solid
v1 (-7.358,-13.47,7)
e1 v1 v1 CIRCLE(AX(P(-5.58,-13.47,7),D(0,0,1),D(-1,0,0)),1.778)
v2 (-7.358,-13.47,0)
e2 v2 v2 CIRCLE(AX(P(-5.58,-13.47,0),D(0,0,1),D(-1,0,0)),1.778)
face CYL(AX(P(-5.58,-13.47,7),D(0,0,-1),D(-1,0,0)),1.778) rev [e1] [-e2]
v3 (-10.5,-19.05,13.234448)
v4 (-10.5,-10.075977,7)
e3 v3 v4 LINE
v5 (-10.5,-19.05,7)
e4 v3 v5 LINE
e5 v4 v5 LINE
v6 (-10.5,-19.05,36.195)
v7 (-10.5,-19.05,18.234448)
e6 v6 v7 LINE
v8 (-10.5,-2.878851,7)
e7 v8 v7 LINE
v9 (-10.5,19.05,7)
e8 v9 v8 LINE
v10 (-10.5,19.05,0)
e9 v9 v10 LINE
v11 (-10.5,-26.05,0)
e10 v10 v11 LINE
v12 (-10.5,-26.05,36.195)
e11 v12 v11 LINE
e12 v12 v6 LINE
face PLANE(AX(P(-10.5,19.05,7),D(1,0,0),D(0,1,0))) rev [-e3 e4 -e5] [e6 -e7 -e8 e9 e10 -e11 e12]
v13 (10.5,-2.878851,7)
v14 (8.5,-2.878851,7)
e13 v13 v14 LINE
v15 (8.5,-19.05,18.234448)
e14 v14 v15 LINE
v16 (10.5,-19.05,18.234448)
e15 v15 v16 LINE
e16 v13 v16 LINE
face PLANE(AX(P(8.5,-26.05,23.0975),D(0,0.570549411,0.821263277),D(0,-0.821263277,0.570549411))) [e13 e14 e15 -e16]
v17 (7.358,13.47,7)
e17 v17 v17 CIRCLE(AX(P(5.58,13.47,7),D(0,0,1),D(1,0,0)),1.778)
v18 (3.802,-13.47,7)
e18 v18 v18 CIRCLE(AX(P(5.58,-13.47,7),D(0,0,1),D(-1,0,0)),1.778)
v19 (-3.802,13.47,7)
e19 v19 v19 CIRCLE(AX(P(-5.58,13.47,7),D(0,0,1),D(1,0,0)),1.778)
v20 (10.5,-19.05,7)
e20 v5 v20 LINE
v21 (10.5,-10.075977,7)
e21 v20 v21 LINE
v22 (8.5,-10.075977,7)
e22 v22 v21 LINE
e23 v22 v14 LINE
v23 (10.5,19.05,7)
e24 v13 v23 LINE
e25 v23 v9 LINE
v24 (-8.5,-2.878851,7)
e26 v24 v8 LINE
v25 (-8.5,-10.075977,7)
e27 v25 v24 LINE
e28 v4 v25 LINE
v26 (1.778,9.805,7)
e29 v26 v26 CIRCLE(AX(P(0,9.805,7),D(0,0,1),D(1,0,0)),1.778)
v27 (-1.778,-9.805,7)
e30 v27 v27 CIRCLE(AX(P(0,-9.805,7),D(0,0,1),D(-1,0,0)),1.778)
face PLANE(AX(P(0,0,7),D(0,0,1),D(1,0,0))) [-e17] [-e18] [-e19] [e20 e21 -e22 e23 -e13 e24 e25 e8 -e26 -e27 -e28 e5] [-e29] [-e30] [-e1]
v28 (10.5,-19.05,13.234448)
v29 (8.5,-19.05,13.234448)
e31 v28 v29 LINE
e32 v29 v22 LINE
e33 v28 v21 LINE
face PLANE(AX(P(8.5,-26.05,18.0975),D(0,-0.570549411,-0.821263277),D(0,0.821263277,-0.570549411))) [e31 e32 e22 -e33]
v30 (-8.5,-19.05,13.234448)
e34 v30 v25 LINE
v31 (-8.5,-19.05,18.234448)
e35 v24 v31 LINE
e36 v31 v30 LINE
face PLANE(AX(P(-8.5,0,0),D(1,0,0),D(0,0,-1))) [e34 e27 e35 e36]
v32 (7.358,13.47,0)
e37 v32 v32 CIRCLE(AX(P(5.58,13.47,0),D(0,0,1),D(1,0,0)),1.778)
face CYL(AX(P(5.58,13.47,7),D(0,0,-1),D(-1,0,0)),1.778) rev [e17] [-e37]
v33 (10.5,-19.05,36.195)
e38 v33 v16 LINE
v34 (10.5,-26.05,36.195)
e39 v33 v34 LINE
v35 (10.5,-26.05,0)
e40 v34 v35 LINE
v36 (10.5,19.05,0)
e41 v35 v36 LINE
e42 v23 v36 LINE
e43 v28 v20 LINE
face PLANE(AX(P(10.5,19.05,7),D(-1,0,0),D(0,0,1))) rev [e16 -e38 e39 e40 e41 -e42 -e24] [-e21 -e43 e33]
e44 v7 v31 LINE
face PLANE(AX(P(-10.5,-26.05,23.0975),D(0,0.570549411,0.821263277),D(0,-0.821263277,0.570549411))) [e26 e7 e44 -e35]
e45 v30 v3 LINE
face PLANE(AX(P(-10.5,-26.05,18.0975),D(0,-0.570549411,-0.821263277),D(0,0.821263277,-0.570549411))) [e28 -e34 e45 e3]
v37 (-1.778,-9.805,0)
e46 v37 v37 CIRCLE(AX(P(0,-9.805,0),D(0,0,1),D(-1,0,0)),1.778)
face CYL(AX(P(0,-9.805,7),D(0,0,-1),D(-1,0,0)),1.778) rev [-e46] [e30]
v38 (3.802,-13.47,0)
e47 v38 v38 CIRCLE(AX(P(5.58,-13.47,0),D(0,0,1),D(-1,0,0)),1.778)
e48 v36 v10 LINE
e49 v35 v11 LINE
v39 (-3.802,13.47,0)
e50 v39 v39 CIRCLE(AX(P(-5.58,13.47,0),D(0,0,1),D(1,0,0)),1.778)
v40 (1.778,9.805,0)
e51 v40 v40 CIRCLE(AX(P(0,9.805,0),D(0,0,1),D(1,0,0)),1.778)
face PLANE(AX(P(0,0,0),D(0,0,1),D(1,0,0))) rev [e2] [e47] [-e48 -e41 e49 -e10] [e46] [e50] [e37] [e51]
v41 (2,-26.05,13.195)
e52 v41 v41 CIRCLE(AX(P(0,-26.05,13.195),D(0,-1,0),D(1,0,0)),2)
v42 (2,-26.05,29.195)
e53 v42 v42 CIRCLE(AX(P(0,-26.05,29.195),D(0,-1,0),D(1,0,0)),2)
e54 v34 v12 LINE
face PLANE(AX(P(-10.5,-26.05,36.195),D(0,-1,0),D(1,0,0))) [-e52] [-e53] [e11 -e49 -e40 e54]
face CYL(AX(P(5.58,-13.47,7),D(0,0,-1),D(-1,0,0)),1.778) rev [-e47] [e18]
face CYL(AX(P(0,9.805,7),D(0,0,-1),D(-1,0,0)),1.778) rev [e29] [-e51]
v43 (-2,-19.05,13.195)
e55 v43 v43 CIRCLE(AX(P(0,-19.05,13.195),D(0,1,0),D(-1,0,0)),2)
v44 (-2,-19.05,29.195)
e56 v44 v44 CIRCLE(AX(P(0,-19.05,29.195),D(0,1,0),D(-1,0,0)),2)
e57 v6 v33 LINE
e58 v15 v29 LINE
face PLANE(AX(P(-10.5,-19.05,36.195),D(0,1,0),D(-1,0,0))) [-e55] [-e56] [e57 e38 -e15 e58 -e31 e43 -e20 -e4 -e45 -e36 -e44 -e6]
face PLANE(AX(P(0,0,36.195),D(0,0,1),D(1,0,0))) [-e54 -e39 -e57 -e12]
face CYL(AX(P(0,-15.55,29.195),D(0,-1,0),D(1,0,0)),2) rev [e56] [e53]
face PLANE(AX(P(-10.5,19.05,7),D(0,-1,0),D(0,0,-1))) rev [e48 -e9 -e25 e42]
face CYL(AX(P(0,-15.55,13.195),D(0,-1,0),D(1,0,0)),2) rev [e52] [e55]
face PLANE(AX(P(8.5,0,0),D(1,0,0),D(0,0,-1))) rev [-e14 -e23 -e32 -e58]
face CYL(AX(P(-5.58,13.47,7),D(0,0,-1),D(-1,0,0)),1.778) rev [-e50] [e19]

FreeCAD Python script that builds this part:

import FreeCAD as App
import Part
import Sketcher
from FreeCAD import Vector
Q = App.Units.Quantity

doc = App.newDocument("Part")
body = doc.addObject("PartDesign::Body", "Body")

sketch1 = body.newObject("Sketcher::SketchObject", "Sketch")
sketch1.AttachmentSupport = (doc.getObject("XY_Plane"), [""])
sketch1.MapMode = "FlatFace"
sketch1.addGeometry([
    Part.LineSegment(Vector(-10.5, 19.1, 0), Vector(-10.5, -19.1, 0)),
    Part.LineSegment(Vector(-10.5, -19.1, 0), Vector(10.5, -19.1, 0)),
    Part.LineSegment(Vector(10.5, -19.1, 0), Vector(10.5, 19.1, 0)),
    Part.LineSegment(Vector(10.5, 19.1, 0), Vector(-10.5, 19.1, 0)),
    Part.Circle(Vector(-5.6, -13.5, 0), Vector(0, 0, 1), 1.8),
    Part.Circle(Vector(0, -9.8, 0), Vector(0, 0, 1), 1.8),
    Part.Circle(Vector(5.6, -13.5, 0), Vector(0, 0, 1), 1.8),
    Part.Circle(Vector(-5.6, 13.5, 0), Vector(0, 0, 1), 1.8),
    Part.Circle(Vector(0, 9.8, 0), Vector(0, 0, 1), 1.8),
    Part.Circle(Vector(5.6, 13.5, 0), Vector(0, 0, 1), 1.8),
], False)
sketch1.addConstraint([
    Sketcher.Constraint("Coincident", 0, 2, 1, 1),
    Sketcher.Constraint("Coincident", 1, 2, 2, 1),
    Sketcher.Constraint("Coincident", 2, 2, 3, 1),
    Sketcher.Constraint("Coincident", 3, 2, 0, 1),
    Sketcher.Constraint("Vertical", 0),
    Sketcher.Constraint("Horizontal", 1),
    Sketcher.Constraint("Vertical", 2),
    Sketcher.Constraint("Horizontal", 3),
    Sketcher.Constraint("Equal", 4, 5),
    Sketcher.Constraint("Equal", 5, 6),
    Sketcher.Constraint("Equal", 6, 7),
    Sketcher.Constraint("Equal", 7, 8),
    Sketcher.Constraint("Equal", 8, 9),
    Sketcher.Constraint("Symmetric", 6, 3, 7, 3, -1, 1),
    Sketcher.Constraint("Symmetric", 5, 3, 8, 3, -1, 1),
    Sketcher.Constraint("Symmetric", 4, 3, 9, 3, -1, 1),
    Sketcher.Constraint("Symmetric", 0, 2, 2, 2, -1, 1),
    Sketcher.Constraint("Symmetric", 4, 3, 6, 3, -2),
    Sketcher.Constraint("PointOnObject", 5, 3, -2),
    Sketcher.Constraint("DistanceX", 1, 1, 1, 2, Q("21 mm")),
    Sketcher.Constraint("Diameter", 4, Q("3.556 mm")),
    Sketcher.Constraint("DistanceY", 0, 2, 0, 1, Q("38.1 mm")),
    Sketcher.Constraint("DistanceX", 4, 3, -1, 1, Q("5.58 mm")),
    Sketcher.Constraint("DistanceY", 4, 3, -1, 1, Q("13.47 mm")),
    Sketcher.Constraint("DistanceY", 5, 3, 8, 3, Q("19.61 mm")),
])
pad1 = body.newObject("PartDesign::Pad", "Pad")
pad1.Profile = sketch1
pad1.Length = 7

sketch2 = body.newObject("Sketcher::SketchObject", "Sketch001")
sketch2.AttachmentSupport = (doc.getObject("XY_Plane"), [""])
sketch2.MapMode = "FlatFace"
sketch2.addGeometry([
    Part.LineSegment(Vector(10, -19, 0), Vector(10, -26, 0)),
    Part.LineSegment(Vector(10, -26, 0), Vector(-10, -26, 0)),
    Part.LineSegment(Vector(-10, -26, 0), Vector(-10, -19, 0)),
    Part.LineSegment(Vector(-10, -19, 0), Vector(10, -19, 0)),
], False)
sketch2.addConstraint([
    Sketcher.Constraint("Coincident", 0, 2, 1, 1),
    Sketcher.Constraint("Coincident", 1, 2, 2, 1),
    Sketcher.Constraint("Coincident", 2, 2, 3, 1),
    Sketcher.Constraint("Coincident", 3, 2, 0, 1),
    Sketcher.Constraint("Vertical", 0),
    Sketcher.Constraint("Horizontal", 1),
    Sketcher.Constraint("Vertical", 2),
    Sketcher.Constraint("Horizontal", 3),
    Sketcher.Constraint("DistanceX", 1, 2, 1, 1, Q("21 mm")),
    Sketcher.Constraint("DistanceY", 0, 2, 0, 1, Q("7 mm")),
    Sketcher.Constraint("DistanceX", -1, 1, 0, 2, Q("10.5 mm")),
    Sketcher.Constraint("DistanceY", 0, 2, -1, 1, Q("26.05 mm")),
])
pad2 = body.newObject("PartDesign::Pad", "Pad001")
pad2.Profile = sketch2
pad2.Length = 36.195

sketch3 = body.newObject("Sketcher::SketchObject", "Sketch002")
sketch3.AttachmentSupport = (doc.getObject("XZ_Plane"), [""])
sketch3.MapMode = "FlatFace"
sketch3.AttachmentOffset = App.Placement(Vector(0, 0, 26.05), App.Rotation())
sketch3.addGeometry([
    Part.Circle(Vector(0, 13.2, 0), Vector(0, 0, 1), 2),
    Part.Circle(Vector(0, 29.2, 0), Vector(0, 0, 1), 2),
], False)
sketch3.addConstraint([
    Sketcher.Constraint("Equal", 0, 1),
    Sketcher.Constraint("PointOnObject", 0, 3, -2),
    Sketcher.Constraint("PointOnObject", 1, 3, -2),
    Sketcher.Constraint("Diameter", 0, Q("4 mm")),
    Sketcher.Constraint("DistanceY", 0, 3, 1, 3, Q("16 mm")),
    Sketcher.Constraint("DistanceY", -1, 1, 0, 3, Q("13.195 mm")),
])
pocket1 = body.newObject("PartDesign::Pocket", "Pocket")
pocket1.Profile = sketch3
pocket1.Length = 10.5

sketch4 = body.newObject("Sketcher::SketchObject", "Sketch003")
sketch4.AttachmentSupport = (doc.getObject("YZ_Plane"), [""])
sketch4.MapMode = "FlatFace"
sketch4.AttachmentOffset = App.Placement(Vector(0, 0, 10.5), App.Rotation())
sketch4.addGeometry([
    Part.LineSegment(Vector(-26, 18, 0), Vector(0, 0, 0)),
    Part.LineSegment(Vector(0, 0, 0), Vector(7, 0, 0)),
    Part.LineSegment(Vector(7, 0, 0), Vector(-26, 23, 0)),
    Part.LineSegment(Vector(-26, 23, 0), Vector(-26, 18, 0)),
], False)
sketch4.addConstraint([
    Sketcher.Constraint("Coincident", 0, 2, 1, 1),
    Sketcher.Constraint("Coincident", 1, 2, 2, 1),
    Sketcher.Constraint("Coincident", 2, 2, 3, 1),
    Sketcher.Constraint("Coincident", 3, 2, 0, 1),
    Sketcher.Constraint("Horizontal", 1),
    Sketcher.Constraint("Vertical", 3),
    Sketcher.Constraint("Coincident", 0, 2, -1, 1),
    Sketcher.Constraint("Parallel", 0, 2),
    Sketcher.Constraint("DistanceY", 3, 2, 3, 1, Q("5 mm")),
    Sketcher.Constraint("DistanceX", 2, 2, -1, 1, Q("26.05 mm")),
    Sketcher.Constraint("DistanceY", -1, 1, 2, 2, Q("23.0975 mm")),
])
pad3 = body.newObject("PartDesign::Pad", "Pad002")
pad3.Profile = sketch4
pad3.Length = 2
pad3.Reversed = True

sketch5 = body.newObject("Sketcher::SketchObject", "Sketch004")
sketch5.AttachmentSupport = (doc.getObject("YZ_Plane"), [""])
sketch5.MapMode = "FlatFace"
sketch5.AttachmentOffset = App.Placement(Vector(0, 0, -8.5), App.Rotation())
sketch5.addGeometry([
    Part.LineSegment(Vector(-26, 18, 0), Vector(0, 0, 0)),
    Part.LineSegment(Vector(0, 0, 0), Vector(7, 0, 0)),
    Part.LineSegment(Vector(7, 0, 0), Vector(-26, 23, 0)),
    Part.LineSegment(Vector(-26, 23, 0), Vector(-26, 18, 0)),
], False)
sketch5.addConstraint([
    Sketcher.Constraint("Coincident", 0, 2, 1, 1),
    Sketcher.Constraint("Coincident", 1, 2, 2, 1),
    Sketcher.Constraint("Coincident", 2, 2, 3, 1),
    Sketcher.Constraint("Coincident", 3, 2, 0, 1),
    Sketcher.Constraint("Horizontal", 1),
    Sketcher.Constraint("Vertical", 3),
    Sketcher.Constraint("Coincident", 0, 2, -1, 1),
    Sketcher.Constraint("Parallel", 0, 2),
    Sketcher.Constraint("DistanceY", 3, 2, 3, 1, Q("5 mm")),
    Sketcher.Constraint("DistanceX", 2, 2, -1, 1, Q("26.05 mm")),
    Sketcher.Constraint("DistanceY", -1, 1, 2, 2, Q("23.0975 mm")),
])
pad4 = body.newObject("PartDesign::Pad", "Pad003")
pad4.Profile = sketch5
pad4.Length = 2
pad4.Reversed = True

doc.recompute()
